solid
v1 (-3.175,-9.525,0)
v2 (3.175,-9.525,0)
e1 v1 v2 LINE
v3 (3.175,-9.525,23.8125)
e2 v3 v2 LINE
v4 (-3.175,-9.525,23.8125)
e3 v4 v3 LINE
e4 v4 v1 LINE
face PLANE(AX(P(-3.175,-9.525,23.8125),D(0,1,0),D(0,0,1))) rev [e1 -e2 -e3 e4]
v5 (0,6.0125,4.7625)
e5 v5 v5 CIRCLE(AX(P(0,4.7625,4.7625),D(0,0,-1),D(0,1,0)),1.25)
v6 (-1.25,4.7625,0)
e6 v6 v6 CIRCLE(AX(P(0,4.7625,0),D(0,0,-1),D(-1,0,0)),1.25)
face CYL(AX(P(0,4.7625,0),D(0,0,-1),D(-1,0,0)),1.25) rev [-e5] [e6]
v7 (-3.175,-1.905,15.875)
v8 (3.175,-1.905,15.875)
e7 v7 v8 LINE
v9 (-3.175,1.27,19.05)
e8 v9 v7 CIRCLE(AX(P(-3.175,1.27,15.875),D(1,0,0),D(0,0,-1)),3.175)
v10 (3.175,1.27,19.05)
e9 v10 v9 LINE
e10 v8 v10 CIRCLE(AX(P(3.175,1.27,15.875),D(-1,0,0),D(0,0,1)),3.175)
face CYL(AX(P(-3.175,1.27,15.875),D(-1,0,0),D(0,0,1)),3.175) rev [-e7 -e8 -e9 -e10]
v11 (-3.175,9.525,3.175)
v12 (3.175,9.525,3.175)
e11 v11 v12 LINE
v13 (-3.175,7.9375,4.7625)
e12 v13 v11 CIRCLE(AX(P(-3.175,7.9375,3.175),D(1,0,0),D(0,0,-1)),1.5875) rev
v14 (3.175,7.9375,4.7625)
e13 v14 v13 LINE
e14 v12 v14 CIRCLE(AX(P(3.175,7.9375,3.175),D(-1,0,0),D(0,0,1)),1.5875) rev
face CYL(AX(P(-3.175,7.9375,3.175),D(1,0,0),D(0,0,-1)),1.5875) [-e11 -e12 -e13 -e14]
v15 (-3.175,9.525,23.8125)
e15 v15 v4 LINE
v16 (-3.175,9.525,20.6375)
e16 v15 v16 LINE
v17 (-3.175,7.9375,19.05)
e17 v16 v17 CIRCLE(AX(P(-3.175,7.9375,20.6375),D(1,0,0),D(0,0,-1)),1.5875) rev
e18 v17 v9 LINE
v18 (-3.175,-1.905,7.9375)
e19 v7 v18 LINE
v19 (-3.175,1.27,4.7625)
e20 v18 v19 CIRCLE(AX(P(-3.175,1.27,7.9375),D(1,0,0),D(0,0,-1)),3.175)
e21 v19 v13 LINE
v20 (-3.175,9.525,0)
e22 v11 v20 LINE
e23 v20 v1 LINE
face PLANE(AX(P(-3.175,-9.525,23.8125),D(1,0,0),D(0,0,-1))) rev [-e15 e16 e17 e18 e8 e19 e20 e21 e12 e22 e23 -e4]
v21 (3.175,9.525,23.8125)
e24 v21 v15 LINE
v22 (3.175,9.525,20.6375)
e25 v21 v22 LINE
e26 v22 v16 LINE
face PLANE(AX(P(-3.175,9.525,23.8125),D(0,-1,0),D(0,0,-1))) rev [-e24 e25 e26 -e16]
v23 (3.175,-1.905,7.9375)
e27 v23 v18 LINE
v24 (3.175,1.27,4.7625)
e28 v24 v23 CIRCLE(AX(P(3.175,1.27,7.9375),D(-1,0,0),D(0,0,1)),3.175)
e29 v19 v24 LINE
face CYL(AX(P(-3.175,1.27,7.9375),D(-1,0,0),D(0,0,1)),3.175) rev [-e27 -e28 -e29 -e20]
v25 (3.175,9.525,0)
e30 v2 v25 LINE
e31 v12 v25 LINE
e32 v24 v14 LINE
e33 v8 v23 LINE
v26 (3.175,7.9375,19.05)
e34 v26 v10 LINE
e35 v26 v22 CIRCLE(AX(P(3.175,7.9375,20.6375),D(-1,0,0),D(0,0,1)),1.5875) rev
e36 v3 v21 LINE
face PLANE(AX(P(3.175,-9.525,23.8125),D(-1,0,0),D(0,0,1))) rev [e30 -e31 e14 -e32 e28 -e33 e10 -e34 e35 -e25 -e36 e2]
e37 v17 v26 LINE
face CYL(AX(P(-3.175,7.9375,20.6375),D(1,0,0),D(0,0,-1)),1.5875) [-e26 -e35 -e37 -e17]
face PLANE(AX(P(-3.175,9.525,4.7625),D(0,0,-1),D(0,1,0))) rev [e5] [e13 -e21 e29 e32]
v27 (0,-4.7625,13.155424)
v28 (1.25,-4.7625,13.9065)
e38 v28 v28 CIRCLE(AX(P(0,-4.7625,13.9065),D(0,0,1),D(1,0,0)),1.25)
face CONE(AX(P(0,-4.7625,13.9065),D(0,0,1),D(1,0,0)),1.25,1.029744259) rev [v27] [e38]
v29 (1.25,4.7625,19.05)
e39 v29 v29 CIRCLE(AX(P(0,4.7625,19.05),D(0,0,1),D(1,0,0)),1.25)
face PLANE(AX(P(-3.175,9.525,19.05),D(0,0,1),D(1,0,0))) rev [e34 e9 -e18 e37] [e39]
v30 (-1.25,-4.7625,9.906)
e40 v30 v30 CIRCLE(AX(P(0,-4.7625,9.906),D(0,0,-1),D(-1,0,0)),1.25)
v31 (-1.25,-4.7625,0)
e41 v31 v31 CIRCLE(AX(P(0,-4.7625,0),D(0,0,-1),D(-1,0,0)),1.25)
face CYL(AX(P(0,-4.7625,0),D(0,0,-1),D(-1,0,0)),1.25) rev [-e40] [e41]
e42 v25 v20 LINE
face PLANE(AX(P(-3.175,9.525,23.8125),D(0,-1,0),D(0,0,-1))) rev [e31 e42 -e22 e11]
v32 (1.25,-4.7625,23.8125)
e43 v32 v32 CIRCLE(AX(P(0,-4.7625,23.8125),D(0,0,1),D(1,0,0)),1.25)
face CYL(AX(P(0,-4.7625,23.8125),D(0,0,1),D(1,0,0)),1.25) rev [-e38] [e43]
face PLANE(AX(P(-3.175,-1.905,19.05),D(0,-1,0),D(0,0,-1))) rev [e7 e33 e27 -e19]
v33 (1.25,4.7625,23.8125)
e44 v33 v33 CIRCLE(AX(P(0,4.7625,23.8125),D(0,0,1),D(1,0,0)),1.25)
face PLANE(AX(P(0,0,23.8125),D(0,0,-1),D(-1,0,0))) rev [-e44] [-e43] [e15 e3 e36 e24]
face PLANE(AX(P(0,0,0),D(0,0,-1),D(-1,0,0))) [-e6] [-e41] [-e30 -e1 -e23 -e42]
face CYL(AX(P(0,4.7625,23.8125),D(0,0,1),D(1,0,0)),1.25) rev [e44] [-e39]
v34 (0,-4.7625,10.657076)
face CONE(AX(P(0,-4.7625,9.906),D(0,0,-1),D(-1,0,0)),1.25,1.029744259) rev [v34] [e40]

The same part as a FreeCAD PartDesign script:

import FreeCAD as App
import Part
import Sketcher
Q = App.Units.Quantity


def edges_at(feature, points):
    """Names of the edges that pass closest to the given points."""
    edges = feature.Shape.Edges
    near = lambda p: min(range(len(edges)), key=lambda i: edges[i].distToShape(Part.Vertex(*p))[0])
    return sorted({f"Edge{near(p) + 1}" for p in points})

doc = App.newDocument("Part")
params = doc.addObject("Spreadsheet::Sheet", "Params")
for row, (alias, value) in enumerate([
    ("sketch1_width", "0.25 in"),
    ("sketch1_height", "0.75 in"),
    ("pad1_length", "0.9375 in"),
    ("sketch2_width", "0.45 in"),
    ("sketch2_height", "0.5625 in"),
    ("sketch3_height", "0.39 in"),
    ("groove_angle", "360 deg"),
    ("linearpattern_pitch", "0.375 in"),
    ("sketch4_height", "0.39 in"),
    ("groove2_angle", "360 deg"),
    ("fillet_radius", "0.125 in"),
    ("fillet2_radius", "0.0625 in"),
], start=1):
    params.set(f"A{row}", alias)
    params.set(f"B{row}", "=" + value)
    params.setAlias(f"B{row}", alias)

body = doc.addObject("PartDesign::Body", "Body")

# Sketch on XY plane
sketch1 = body.newObject("Sketcher::SketchObject", "Sketch")
sketch1.AttachmentSupport = (doc.getObject("XY_Plane"), [""])
sketch1.MapMode = "FlatFace"
sketch1.addGeometry(Part.LineSegment(App.Vector(-3, 10, 0), App.Vector(-3, -10, 0)), False)
sketch1.addGeometry(Part.LineSegment(App.Vector(-3, -10, 0), App.Vector(3, -10, 0)), False)
sketch1.addGeometry(Part.LineSegment(App.Vector(3, -10, 0), App.Vector(3, 10, 0)), False)
sketch1.addGeometry(Part.LineSegment(App.Vector(3, 10, 0), App.Vector(-3, 10, 0)), False)
sketch1.addConstraint(Sketcher.Constraint("Coincident", 0, 2, 1, 1))
sketch1.addConstraint(Sketcher.Constraint("Coincident", 1, 2, 2, 1))
sketch1.addConstraint(Sketcher.Constraint("Coincident", 2, 2, 3, 1))
sketch1.addConstraint(Sketcher.Constraint("Coincident", 3, 2, 0, 1))
sketch1.addConstraint(Sketcher.Constraint("Vertical", 0))
sketch1.addConstraint(Sketcher.Constraint("Horizontal", 1))
sketch1.addConstraint(Sketcher.Constraint("Vertical", 2))
sketch1.addConstraint(Sketcher.Constraint("Horizontal", 3))
sketch1.addConstraint(Sketcher.Constraint("Symmetric", 0, 2, 2, 2, -1, 1))
sketch1.addConstraint(Sketcher.Constraint("DistanceX", 1, 1, 1, 2, Q("0.25 in")))
sketch1.addConstraint(Sketcher.Constraint("DistanceY", 0, 2, 0, 1, Q("0.75 in")))
sketch1.setExpression("Constraints[9]", "Params.sketch1_width")
sketch1.setExpression("Constraints[10]", "Params.sketch1_height")
pad1 = body.newObject("PartDesign::Pad", "Pad")
pad1.Profile = sketch1
pad1.setExpression("Length", "Params.pad1_length")

# Sketch on YZ plane
sketch2 = body.newObject("Sketcher::SketchObject", "Sketch001")
sketch2.AttachmentSupport = (doc.getObject("YZ_Plane"), [""])
sketch2.MapMode = "FlatFace"
sketch2.AttachmentOffset = App.Placement(App.Vector(0, 0, 0.125 * 25.4), App.Rotation())
sketch2.addGeometry(Part.LineSegment(App.Vector(10, 19, 0), App.Vector(-2, 19, 0)), False)
sketch2.addGeometry(Part.LineSegment(App.Vector(-2, 19, 0), App.Vector(-2, 5, 0)), False)
sketch2.addGeometry(Part.LineSegment(App.Vector(-2, 5, 0), App.Vector(10, 5, 0)), False)
sketch2.addGeometry(Part.LineSegment(App.Vector(10, 5, 0), App.Vector(10, 19, 0)), False)
sketch2.addConstraint(Sketcher.Constraint("Coincident", 0, 2, 1, 1))
sketch2.addConstraint(Sketcher.Constraint("Coincident", 1, 2, 2, 1))
sketch2.addConstraint(Sketcher.Constraint("Coincident", 2, 2, 3, 1))
sketch2.addConstraint(Sketcher.Constraint("Coincident", 3, 2, 0, 1))
sketch2.addConstraint(Sketcher.Constraint("Horizontal", 0))
sketch2.addConstraint(Sketcher.Constraint("Vertical", 1))
sketch2.addConstraint(Sketcher.Constraint("Horizontal", 2))
sketch2.addConstraint(Sketcher.Constraint("Vertical", 3))
sketch2.addConstraint(Sketcher.Constraint("DistanceX", 0, 2, 0, 1, Q("0.45 in")))
sketch2.addConstraint(Sketcher.Constraint("DistanceY", 1, 2, 1, 1, Q("0.5625 in")))
sketch2.addConstraint(Sketcher.Constraint("DistanceY", -1, 1, 0, 2, Q("0.75 in")))
sketch2.addConstraint(Sketcher.Constraint("DistanceX", 0, 2, -1, 1, Q("0.075 in")))
sketch2.setExpression("Constraints[8]", "Params.sketch2_width")
sketch2.setExpression("Constraints[9]", "Params.sketch2_height")
pocket1 = body.newObject("PartDesign::Pocket", "Pocket")
pocket1.Profile = sketch2
pocket1.Type = "ThroughAll"

# Sketch on YZ plane
sketch3 = body.newObject("Sketcher::SketchObject", "Sketch002")
sketch3.AttachmentSupport = (doc.getObject("YZ_Plane"), [""])
sketch3.MapMode = "FlatFace"
sketch3.addGeometry(Part.LineSegment(App.Vector(-4.8, 13.2, 0), App.Vector(-4.8, 23.8, 0)), False)
sketch3.addGeometry(Part.LineSegment(App.Vector(-4.8, 23.8, 0), App.Vector(-6, 23.8, 0)), False)
sketch3.addGeometry(Part.LineSegment(App.Vector(-6, 23.8, 0), App.Vector(-6, 13.9, 0)), False)
sketch3.addGeometry(Part.LineSegment(App.Vector(-6, 13.9, 0), App.Vector(-4.8, 13.2, 0)), False)
sketch3.addGeometry(Part.LineSegment(App.Vector(-4.8, 23.8, 0), App.Vector(-4.8, 13.2, 0)), True)  # axis
sketch3.addConstraint(Sketcher.Constraint("Coincident", 0, 2, 1, 1))
sketch3.addConstraint(Sketcher.Constraint("Coincident", 1, 2, 2, 1))
sketch3.addConstraint(Sketcher.Constraint("Coincident", 2, 2, 3, 1))
sketch3.addConstraint(Sketcher.Constraint("Coincident", 3, 2, 0, 1))
sketch3.addConstraint(Sketcher.Constraint("Vertical", 0))
sketch3.addConstraint(Sketcher.Constraint("Horizontal", 1))
sketch3.addConstraint(Sketcher.Constraint("Vertical", 2))
sketch3.addConstraint(Sketcher.Constraint("Vertical", 4))
sketch3.addConstraint(Sketcher.Constraint("Coincident", 4, 1, 0, 2))
sketch3.addConstraint(Sketcher.Constraint("Equal", 0, 4))
sketch3.addConstraint(Sketcher.Constraint("Angle", 3, Q("-31 deg")))
sketch3.addConstraint(Sketcher.Constraint("DistanceY", 2, 2, 2, 1, Q("0.39 in")))
sketch3.addConstraint(Sketcher.Constraint("DistanceX", 0, 2, -1, 1, Q("0.1875 in")))
sketch3.addConstraint(Sketcher.Constraint("DistanceY", -1, 1, 0, 2, Q("0.9375 in")))
sketch3.addConstraint(Sketcher.Constraint("DistanceX", 1, 2, 1, 1, 1.25))
sketch3.setExpression("Constraints[11]", "Params.sketch3_height")
groove = body.newObject("PartDesign::Groove", "Groove")
groove.Profile = sketch3
groove.ReferenceAxis = (sketch3, ["Axis0"])
groove.setExpression("Angle", "Params.groove_angle")
doc.recompute()

linearpattern = body.newObject("PartDesign::LinearPattern", "LinearPattern")
linearpattern.Originals = [groove]
linearpattern.Direction = (doc.getObject("Y_Axis"), [""])
linearpattern.Mode = "offset"
linearpattern.setExpression("Offset", "Params.linearpattern_pitch")
linearpattern.Occurrences = 2
body.Tip = linearpattern
doc.recompute()

datumplane = body.newObject("PartDesign::Plane", "DatumPlane")
datumplane.AttachmentSupport = (doc.getObject("XY_Plane"), [""])
datumplane.MapMode = "FlatFace"
datumplane.AttachmentOffset = App.Placement(App.Vector(0, 0, 0.46875 * 25.4), App.Rotation())
mirrored = body.newObject("PartDesign::Mirrored", "Mirrored")
mirrored.Originals = [groove]
mirrored.MirrorPlane = (datumplane, [""])
body.Tip = mirrored

# Sketch on YZ plane
sketch4 = body.newObject("Sketcher::SketchObject", "Sketch003")
sketch4.AttachmentSupport = (doc.getObject("YZ_Plane"), [""])
sketch4.MapMode = "FlatFace"
sketch4.addGeometry(Part.LineSegment(App.Vector(4.8, 0, 0), App.Vector(4.8, 10.7, 0)), False)
sketch4.addGeometry(Part.LineSegment(App.Vector(4.8, 10.7, 0), App.Vector(3.5, 9.9, 0)), False)
sketch4.addGeometry(Part.LineSegment(App.Vector(3.5, 9.9, 0), App.Vector(3.5, 0, 0)), False)
sketch4.addGeometry(Part.LineSegment(App.Vector(3.5, 0, 0), App.Vector(4.8, 0, 0)), False)
sketch4.addGeometry(Part.LineSegment(App.Vector(4.8, 10.7, 0), App.Vector(4.8, 0, 0)), True)  # axis
sketch4.addConstraint(Sketcher.Constraint("Coincident", 0, 2, 1, 1))
sketch4.addConstraint(Sketcher.Constraint("Coincident", 1, 2, 2, 1))
sketch4.addConstraint(Sketcher.Constraint("Coincident", 2, 2, 3, 1))
sketch4.addConstraint(Sketcher.Constraint("Coincident", 3, 2, 0, 1))
sketch4.addConstraint(Sketcher.Constraint("Vertical", 0))
sketch4.addConstraint(Sketcher.Constraint("Vertical", 2))
sketch4.addConstraint(Sketcher.Constraint("Horizontal", 3))
sketch4.addConstraint(Sketcher.Constraint("Vertical", 4))
sketch4.addConstraint(Sketcher.Constraint("Coincident", 4, 1, 0, 2))
sketch4.addConstraint(Sketcher.Constraint("PointOnObject", 2, 2, -1))
sketch4.addConstraint(Sketcher.Constraint("PointOnObject", 4, 2, -1))
sketch4.addConstraint(Sketcher.Constraint("Angle", 1, Q("-149 deg")))
sketch4.addConstraint(Sketcher.Constraint("DistanceY", 2, 2, 2, 1, Q("0.39 in")))
sketch4.addConstraint(Sketcher.Constraint("DistanceX", -1, 1, 0, 2, Q("0.1875 in")))
sketch4.addConstraint(Sketcher.Constraint("DistanceX", 3, 1, 3, 2, 1.25))
sketch4.setExpression("Constraints[12]", "Params.sketch4_height")
groove2 = body.newObject("PartDesign::Groove", "Groove001")
groove2.Profile = sketch4
groove2.ReferenceAxis = (sketch4, ["Axis0"])
groove2.setExpression("Angle", "Params.groove2_angle")
doc.recompute()

fillet = body.newObject("PartDesign::Fillet", "Fillet")
fillet.Base = (groove2, edges_at(groove2, [(0, -1.905, 19.05), (0, -1.905, 4.763)]))
fillet.setExpression("Radius", "Params.fillet_radius")
doc.recompute()

fillet2 = body.newObject("PartDesign::Fillet", "Fillet001")
fillet2.Base = (fillet, edges_at(fillet, [(0, 9.525, 19.05), (0, 9.525, 4.763)]))
fillet2.setExpression("Radius", "Params.fillet2_radius")

doc.recompute()
